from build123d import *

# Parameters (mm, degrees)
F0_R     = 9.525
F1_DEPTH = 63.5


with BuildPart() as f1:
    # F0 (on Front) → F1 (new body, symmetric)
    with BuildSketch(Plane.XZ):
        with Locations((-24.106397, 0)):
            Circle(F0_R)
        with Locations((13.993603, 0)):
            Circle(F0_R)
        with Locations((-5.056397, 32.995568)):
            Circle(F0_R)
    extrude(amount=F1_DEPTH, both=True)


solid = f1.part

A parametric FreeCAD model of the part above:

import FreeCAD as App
import Part
import Sketcher
Q = App.Units.Quantity

doc = App.newDocument("Part")
body = doc.addObject("PartDesign::Body", "Body")
body.AllowCompound = True

sketch1 = body.newObject("Sketcher::SketchObject", "Sketch")
sketch1.AttachmentSupport = (doc.getObject("XZ_Plane"), [""])
sketch1.MapMode = "FlatFace"
sketch1.addGeometry([
    Part.Circle(App.Vector(-24, 0, 0), App.Vector(0, 0, 1), 10),
    Part.Circle(App.Vector(14, 0, 0), App.Vector(0, 0, 1), 10),
    Part.Circle(App.Vector(-5, 33, 0), App.Vector(0, 0, 1), 10),
], False)
sketch1.addConstraint([
    Sketcher.Constraint("Equal", 0, 1),
    Sketcher.Constraint("Equal", 1, 2),
    Sketcher.Constraint("PointOnObject", 0, 3, -1),
    Sketcher.Constraint("PointOnObject", 1, 3, -1),
    Sketcher.Constraint("Diameter", 0, Q("0.75 in")),
    Sketcher.Constraint("DistanceX", 0, 3, 1, 3, Q("1.5 in")),
    Sketcher.Constraint("DistanceX", 0, 3, 2, 3, Q("0.75 in")),
    Sketcher.Constraint("DistanceX", 0, 3, -1, 1, Q("24.106397 mm")),
    Sketcher.Constraint("DistanceY", -1, 1, 2, 3, Q("32.995568 mm")),
])
pad1 = body.newObject("PartDesign::Pad", "Pad")
pad1.Profile = sketch1
pad1.Length = Q("5 in")
pad1.Midplane = True

doc.recompute()
